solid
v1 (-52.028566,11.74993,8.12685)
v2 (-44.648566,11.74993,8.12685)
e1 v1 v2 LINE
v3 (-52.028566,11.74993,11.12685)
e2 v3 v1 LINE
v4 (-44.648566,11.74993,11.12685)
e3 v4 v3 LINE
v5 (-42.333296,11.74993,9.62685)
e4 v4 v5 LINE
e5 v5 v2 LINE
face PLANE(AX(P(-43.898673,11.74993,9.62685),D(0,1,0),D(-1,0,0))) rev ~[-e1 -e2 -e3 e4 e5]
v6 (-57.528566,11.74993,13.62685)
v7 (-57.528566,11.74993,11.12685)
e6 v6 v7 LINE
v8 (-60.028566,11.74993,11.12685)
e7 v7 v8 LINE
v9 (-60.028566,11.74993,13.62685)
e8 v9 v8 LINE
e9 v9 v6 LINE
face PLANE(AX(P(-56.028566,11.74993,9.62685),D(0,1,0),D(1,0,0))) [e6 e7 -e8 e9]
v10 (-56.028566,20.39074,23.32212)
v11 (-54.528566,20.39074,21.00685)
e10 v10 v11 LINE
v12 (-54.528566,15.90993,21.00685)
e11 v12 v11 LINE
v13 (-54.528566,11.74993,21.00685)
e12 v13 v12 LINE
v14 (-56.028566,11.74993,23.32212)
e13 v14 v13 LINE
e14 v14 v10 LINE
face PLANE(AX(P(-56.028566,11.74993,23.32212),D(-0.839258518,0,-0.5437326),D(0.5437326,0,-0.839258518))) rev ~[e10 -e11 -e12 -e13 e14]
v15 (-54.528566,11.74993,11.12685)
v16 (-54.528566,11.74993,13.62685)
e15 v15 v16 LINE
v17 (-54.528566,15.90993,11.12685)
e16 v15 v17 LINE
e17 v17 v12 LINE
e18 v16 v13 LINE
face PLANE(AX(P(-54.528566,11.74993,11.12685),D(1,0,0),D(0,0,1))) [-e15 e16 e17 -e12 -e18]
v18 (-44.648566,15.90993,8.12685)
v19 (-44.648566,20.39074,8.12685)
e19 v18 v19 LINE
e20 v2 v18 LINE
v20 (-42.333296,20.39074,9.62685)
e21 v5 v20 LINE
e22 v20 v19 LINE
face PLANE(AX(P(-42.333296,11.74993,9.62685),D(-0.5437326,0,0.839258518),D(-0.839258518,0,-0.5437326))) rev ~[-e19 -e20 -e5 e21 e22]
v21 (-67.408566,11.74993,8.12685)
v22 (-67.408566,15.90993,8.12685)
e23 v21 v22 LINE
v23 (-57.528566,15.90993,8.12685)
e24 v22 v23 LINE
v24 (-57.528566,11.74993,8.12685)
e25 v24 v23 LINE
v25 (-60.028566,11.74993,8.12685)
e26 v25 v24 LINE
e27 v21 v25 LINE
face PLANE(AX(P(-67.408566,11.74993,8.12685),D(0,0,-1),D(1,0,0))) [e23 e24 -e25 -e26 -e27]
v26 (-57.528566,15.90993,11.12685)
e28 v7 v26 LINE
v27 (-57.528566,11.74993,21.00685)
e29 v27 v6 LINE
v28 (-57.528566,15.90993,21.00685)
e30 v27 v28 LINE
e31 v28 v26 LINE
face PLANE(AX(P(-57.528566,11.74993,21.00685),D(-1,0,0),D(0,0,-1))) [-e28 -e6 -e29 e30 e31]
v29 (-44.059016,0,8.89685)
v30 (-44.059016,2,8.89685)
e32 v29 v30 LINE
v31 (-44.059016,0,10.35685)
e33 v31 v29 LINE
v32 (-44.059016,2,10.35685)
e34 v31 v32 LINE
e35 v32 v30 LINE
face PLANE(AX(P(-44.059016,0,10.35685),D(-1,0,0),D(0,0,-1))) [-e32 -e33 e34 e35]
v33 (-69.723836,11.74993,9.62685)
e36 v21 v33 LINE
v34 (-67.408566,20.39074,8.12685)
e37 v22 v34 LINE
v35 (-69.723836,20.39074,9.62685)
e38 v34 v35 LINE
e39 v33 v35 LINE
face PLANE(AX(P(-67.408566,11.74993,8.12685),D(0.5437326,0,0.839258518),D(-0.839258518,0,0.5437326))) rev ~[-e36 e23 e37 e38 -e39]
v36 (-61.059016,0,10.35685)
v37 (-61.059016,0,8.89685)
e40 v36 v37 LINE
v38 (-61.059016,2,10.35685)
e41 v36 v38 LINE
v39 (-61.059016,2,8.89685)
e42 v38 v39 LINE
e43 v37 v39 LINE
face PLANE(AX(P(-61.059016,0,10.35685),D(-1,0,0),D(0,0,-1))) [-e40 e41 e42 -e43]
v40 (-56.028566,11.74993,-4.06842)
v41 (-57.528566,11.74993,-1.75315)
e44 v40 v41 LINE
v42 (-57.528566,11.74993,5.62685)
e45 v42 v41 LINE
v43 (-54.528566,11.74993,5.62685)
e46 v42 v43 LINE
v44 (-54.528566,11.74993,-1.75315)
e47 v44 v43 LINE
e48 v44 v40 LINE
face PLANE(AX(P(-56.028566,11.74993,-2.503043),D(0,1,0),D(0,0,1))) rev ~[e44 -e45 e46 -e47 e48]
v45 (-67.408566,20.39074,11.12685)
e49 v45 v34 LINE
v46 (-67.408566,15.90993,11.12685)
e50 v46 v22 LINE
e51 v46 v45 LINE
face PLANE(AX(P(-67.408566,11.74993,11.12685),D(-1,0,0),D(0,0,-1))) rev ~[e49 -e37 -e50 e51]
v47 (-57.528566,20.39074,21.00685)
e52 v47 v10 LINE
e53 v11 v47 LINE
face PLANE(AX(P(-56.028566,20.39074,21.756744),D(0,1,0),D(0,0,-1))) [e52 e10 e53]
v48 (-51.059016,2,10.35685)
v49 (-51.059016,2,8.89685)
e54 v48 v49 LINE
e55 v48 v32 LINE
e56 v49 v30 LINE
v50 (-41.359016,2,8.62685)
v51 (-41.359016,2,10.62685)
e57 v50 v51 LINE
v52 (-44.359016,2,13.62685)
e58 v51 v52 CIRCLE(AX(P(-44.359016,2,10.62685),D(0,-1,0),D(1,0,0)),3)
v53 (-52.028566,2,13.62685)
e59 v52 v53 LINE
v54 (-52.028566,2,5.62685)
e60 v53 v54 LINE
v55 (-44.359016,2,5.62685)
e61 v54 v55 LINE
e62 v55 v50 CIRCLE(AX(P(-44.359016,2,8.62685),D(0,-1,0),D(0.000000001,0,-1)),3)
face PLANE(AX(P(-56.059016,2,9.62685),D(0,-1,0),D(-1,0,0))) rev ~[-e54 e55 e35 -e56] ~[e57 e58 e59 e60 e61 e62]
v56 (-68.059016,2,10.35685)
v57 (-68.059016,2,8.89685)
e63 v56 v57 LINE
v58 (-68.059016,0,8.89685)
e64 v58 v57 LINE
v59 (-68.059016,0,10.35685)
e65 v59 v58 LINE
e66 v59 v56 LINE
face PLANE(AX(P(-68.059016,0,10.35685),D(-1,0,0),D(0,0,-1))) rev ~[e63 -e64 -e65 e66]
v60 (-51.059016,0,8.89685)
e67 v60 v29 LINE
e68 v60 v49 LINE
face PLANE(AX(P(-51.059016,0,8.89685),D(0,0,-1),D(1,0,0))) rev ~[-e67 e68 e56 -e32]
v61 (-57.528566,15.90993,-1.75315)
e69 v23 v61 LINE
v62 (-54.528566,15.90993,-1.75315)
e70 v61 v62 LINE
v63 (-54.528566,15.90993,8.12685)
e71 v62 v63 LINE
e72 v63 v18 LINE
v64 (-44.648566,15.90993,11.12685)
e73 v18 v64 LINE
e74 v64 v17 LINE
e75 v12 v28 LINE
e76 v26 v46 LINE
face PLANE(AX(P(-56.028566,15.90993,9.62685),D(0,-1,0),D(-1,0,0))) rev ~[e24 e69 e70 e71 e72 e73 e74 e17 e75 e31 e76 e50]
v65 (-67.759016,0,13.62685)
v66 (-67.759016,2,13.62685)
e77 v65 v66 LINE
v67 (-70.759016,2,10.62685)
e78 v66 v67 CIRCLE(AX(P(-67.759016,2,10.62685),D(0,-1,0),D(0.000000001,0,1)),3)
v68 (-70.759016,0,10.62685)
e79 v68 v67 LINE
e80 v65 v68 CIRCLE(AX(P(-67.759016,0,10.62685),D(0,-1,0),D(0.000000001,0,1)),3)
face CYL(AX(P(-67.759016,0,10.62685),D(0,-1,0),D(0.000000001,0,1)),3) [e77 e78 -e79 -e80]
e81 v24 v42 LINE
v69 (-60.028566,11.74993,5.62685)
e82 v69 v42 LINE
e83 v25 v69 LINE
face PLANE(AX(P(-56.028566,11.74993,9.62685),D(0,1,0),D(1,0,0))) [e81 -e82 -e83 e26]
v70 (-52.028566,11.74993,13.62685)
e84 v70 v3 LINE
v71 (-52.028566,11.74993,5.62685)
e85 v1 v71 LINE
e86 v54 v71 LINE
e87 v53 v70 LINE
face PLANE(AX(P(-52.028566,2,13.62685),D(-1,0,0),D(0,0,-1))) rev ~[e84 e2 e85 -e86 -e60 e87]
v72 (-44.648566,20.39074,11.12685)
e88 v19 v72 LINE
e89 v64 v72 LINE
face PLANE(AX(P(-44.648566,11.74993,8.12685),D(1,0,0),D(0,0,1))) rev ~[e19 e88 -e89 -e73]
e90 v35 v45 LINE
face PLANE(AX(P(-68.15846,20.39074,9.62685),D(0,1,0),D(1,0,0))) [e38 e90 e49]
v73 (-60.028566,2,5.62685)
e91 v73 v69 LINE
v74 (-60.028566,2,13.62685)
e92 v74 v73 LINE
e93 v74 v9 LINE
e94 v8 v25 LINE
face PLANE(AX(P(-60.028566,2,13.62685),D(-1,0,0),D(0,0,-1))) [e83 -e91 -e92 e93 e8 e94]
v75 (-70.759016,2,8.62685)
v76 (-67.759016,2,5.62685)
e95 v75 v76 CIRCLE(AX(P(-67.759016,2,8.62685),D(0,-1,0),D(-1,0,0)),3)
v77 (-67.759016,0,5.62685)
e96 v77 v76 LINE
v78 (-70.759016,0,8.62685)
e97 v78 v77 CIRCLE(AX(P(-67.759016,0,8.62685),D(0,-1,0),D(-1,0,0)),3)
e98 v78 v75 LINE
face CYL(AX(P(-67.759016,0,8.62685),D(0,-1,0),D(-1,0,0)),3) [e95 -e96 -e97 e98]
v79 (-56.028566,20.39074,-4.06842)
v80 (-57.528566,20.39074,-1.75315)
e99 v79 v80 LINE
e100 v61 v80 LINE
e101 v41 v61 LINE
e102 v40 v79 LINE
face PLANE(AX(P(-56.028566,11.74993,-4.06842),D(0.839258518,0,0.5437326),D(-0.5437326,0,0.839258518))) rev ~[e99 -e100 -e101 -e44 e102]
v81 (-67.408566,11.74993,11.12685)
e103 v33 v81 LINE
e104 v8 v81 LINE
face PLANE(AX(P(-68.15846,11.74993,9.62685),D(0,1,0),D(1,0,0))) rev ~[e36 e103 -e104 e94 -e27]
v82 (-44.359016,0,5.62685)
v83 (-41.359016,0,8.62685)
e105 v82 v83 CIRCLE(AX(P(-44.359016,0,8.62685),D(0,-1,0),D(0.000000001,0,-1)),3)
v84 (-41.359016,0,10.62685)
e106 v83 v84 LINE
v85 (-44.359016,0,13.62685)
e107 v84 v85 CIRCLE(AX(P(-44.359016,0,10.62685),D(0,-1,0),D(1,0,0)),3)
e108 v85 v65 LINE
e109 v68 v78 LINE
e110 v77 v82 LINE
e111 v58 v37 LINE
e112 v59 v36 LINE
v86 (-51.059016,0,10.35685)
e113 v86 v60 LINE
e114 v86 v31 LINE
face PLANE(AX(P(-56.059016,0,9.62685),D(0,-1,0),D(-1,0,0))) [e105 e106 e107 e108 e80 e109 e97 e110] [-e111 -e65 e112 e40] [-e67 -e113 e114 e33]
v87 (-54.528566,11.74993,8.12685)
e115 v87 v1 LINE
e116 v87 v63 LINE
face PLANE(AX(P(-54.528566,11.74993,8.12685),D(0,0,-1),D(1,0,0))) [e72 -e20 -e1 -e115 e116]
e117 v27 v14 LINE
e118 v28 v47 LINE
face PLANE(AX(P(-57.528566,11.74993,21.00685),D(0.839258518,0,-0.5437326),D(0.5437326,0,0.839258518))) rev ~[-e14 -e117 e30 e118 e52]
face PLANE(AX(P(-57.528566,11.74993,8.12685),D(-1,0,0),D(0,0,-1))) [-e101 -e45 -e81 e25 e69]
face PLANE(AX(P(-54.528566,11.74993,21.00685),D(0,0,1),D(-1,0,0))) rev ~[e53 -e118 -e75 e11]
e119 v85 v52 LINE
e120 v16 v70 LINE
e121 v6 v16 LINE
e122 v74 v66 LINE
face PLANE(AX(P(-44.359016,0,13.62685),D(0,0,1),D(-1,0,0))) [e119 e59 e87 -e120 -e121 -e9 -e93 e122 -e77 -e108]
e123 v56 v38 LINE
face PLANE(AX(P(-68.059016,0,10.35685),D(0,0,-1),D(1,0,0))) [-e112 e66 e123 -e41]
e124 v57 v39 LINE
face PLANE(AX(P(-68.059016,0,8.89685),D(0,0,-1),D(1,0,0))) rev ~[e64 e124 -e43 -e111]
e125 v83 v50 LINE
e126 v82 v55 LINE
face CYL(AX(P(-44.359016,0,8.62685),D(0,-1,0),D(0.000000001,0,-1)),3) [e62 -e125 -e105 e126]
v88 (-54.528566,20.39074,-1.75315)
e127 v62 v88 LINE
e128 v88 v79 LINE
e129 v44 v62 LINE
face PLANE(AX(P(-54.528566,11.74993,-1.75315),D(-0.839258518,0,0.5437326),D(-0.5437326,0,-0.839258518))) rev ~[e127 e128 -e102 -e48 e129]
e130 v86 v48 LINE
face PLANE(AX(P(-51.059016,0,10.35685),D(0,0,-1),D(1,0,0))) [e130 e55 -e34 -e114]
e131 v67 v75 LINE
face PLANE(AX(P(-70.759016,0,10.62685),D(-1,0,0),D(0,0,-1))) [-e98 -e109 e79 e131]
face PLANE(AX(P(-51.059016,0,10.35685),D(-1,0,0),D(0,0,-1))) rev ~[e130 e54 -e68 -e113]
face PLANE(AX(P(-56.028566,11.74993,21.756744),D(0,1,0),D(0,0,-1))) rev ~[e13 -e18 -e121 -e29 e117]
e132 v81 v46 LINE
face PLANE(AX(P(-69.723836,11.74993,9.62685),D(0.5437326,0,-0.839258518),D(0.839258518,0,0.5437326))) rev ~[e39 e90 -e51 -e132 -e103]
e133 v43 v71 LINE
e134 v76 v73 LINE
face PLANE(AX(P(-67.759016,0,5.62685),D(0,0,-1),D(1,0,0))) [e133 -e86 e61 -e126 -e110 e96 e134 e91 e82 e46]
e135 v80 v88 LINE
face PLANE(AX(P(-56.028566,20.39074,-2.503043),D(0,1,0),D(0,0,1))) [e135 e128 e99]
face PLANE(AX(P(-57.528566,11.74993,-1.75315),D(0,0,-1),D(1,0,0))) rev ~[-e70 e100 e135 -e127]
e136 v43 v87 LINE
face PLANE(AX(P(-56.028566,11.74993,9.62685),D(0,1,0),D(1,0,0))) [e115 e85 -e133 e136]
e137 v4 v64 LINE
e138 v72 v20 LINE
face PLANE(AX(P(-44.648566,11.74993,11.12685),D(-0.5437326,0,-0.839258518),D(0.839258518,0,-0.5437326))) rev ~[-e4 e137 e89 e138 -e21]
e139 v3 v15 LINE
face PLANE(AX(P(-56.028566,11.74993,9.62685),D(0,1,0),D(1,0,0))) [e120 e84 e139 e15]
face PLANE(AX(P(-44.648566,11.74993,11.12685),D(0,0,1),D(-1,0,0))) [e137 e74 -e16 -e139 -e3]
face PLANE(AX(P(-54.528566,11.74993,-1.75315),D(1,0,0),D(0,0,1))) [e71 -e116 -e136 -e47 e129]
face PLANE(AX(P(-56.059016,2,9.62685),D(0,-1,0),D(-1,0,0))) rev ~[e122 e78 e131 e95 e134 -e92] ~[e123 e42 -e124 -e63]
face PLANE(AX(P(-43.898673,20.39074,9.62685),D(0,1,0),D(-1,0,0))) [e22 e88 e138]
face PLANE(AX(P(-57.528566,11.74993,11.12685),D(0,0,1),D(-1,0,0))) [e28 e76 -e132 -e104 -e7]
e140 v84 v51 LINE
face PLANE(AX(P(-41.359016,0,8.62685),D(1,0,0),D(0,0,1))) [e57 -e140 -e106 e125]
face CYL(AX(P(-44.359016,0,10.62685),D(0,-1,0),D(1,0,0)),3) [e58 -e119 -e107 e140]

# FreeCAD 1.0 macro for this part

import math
import FreeCAD as App
import Part
import Sketcher
Q = App.Units.Quantity


def add_polygon(sketch, points):
    """Adds a closed chain of lines whose ends are joined by coincident constraints."""
    first, n = sketch.GeometryCount, len(points)
    for a, b in zip(points, points[1:] + points[:1]):
        sketch.addGeometry(Part.LineSegment(App.Vector(*a, 0), App.Vector(*b, 0)), False)
    for i in range(n):
        sketch.addConstraint(Sketcher.Constraint("Coincident", first + i, 2, first + (i + 1) % n, 1))

doc = App.newDocument("Part")
body = doc.addObject("PartDesign::Body", "Body")

# Sketch on XZ plane
sketch1 = body.newObject("Sketcher::SketchObject", "Sketch")
sketch1.AttachmentSupport = (doc.getObject("XZ_Plane"), [""])
sketch1.MapMode = "FlatFace"
sketch1.addGeometry(Part.LineSegment(App.Vector(-44.4, 5.6, 0), App.Vector(-67.8, 5.6, 0)), False)  # 0
sketch1.addGeometry(Part.ArcOfCircle(Part.Circle(App.Vector(-67.8, 8.6, 0), App.Vector(0, 0, 1), 3), math.radians(180), math.radians(270)), False)  # 1
sketch1.addGeometry(Part.LineSegment(App.Vector(-70.8, 8.6, 0), App.Vector(-70.8, 10.6, 0)), False)  # 2
sketch1.addGeometry(Part.ArcOfCircle(Part.Circle(App.Vector(-67.8, 10.6, 0), App.Vector(0, 0, 1), 3), math.radians(90), math.radians(180)), False)  # 3
sketch1.addGeometry(Part.LineSegment(App.Vector(-67.8, 13.6, 0), App.Vector(-44.4, 13.6, 0)), False)  # 4
sketch1.addGeometry(Part.ArcOfCircle(Part.Circle(App.Vector(-44.4, 10.6, 0), App.Vector(0, 0, 1), 3), math.radians(0), math.radians(90)), False)  # 5
sketch1.addGeometry(Part.LineSegment(App.Vector(-41.4, 10.6, 0), App.Vector(-41.4, 8.6, 0)), False)  # 6
sketch1.addGeometry(Part.ArcOfCircle(Part.Circle(App.Vector(-44.4, 8.6, 0), App.Vector(0, 0, 1), 3), math.radians(-90), math.radians(0)), False)  # 7
add_polygon(sketch1, [(-51.1, 10.4), (-51.1, 8.9), (-44.1, 8.9), (-44.1, 10.4)])  # lines 8-11
add_polygon(sketch1, [(-68.1, 10.4), (-68.1, 8.9), (-61.1, 8.9), (-61.1, 10.4)])  # lines 12-15
sketch1.addConstraint([
    Sketcher.Constraint("Tangent", 0, 2, 1, 2),
    Sketcher.Constraint("Tangent", 1, 1, 2, 1),
    Sketcher.Constraint("Tangent", 2, 2, 3, 2),
    Sketcher.Constraint("Tangent", 3, 1, 4, 1),
    Sketcher.Constraint("Tangent", 4, 2, 5, 2),
    Sketcher.Constraint("Tangent", 5, 1, 6, 1),
    Sketcher.Constraint("Tangent", 6, 2, 7, 2),
    Sketcher.Constraint("Tangent", 7, 1, 0, 1),
    Sketcher.Constraint("Horizontal", 0),
    Sketcher.Constraint("Vertical", 2),
    Sketcher.Constraint("Horizontal", 4),
    Sketcher.Constraint("Vertical", 6),
    Sketcher.Constraint("Vertical", 8),
    Sketcher.Constraint("Horizontal", 9),
    Sketcher.Constraint("Vertical", 10),
    Sketcher.Constraint("Horizontal", 11),
    Sketcher.Constraint("Vertical", 12),
    Sketcher.Constraint("Horizontal", 13),
    Sketcher.Constraint("Vertical", 14),
    Sketcher.Constraint("Horizontal", 15),
    Sketcher.Constraint("Equal", 1, 3),
    Sketcher.Constraint("Equal", 3, 5),
    Sketcher.Constraint("Equal", 5, 7),
    Sketcher.Constraint("Horizontal", 9, 2, 12, 2),
    Sketcher.Constraint("Horizontal", 11, 2, 14, 2),
    Sketcher.Constraint("Equal", 11, 13),
    Sketcher.Constraint("Radius", 1, Q("3 mm")),
    Sketcher.Constraint("DistanceX", 9, 1, 9, 2, Q("7 mm")),
    Sketcher.Constraint("DistanceY", 2, 1, 2, 2, Q("2 mm")),
    Sketcher.Constraint("DistanceX", 0, 2, 0, 1, Q("23.4 mm")),
    Sketcher.Constraint("DistanceY", 8, 2, 8, 1, Q("1.46 mm")),
    Sketcher.Constraint("DistanceX", 8, 2, 7, 3, Q("6.7 mm")),
    Sketcher.Constraint("DistanceX", 12, 2, 1, 3, Q("0.3 mm")),
    Sketcher.Constraint("DistanceY", 7, 3, 8, 2, Q("0.27 mm")),
    Sketcher.Constraint("DistanceY", -1, 1, 1, 3, Q("8.62685 mm")),
    Sketcher.Constraint("DistanceX", 1, 3, -1, 1, Q("67.759016 mm")),
])
pad1 = body.newObject("PartDesign::Pad", "Pad")
pad1.Profile = sketch1
pad1.Length = 2
pad1.Reversed = True

# Sketch on XZ plane
sketch2 = body.newObject("Sketcher::SketchObject", "Sketch001")
sketch2.AttachmentSupport = (doc.getObject("XZ_Plane"), [""])
sketch2.MapMode = "FlatFace"
sketch2.AttachmentOffset = App.Placement(App.Vector(0, 0, -2), App.Rotation())
add_polygon(sketch2, [(-60, 6), (-60, 14), (-52, 14), (-52, 6)])  # lines 0-3
sketch2.addConstraint([
    Sketcher.Constraint("Vertical", 0),
    Sketcher.Constraint("Horizontal", 1),
    Sketcher.Constraint("Vertical", 2),
    Sketcher.Constraint("Horizontal", 3),
    Sketcher.Constraint("Equal", 3, 0),
    Sketcher.Constraint("DistanceX", 1, 1, 1, 2, Q("8 mm")),
    Sketcher.Constraint("DistanceY", -1, 1, 0, 2, Q("13.62685 mm")),
    Sketcher.Constraint("DistanceX", 0, 2, -1, 1, Q("60.028566 mm")),
])
pad2 = body.newObject("PartDesign::Pad", "Pad001")
pad2.Profile = sketch2
pad2.Length = 9.74993
pad2.Reversed = True

# Sketch on XZ plane
sketch3 = body.newObject("Sketcher::SketchObject", "Sketch002")
sketch3.AttachmentSupport = (doc.getObject("XZ_Plane"), [""])
sketch3.MapMode = "FlatFace"
sketch3.AttachmentOffset = App.Placement(App.Vector(0, 0, -11.74993), App.Rotation())
add_polygon(sketch3, [(-57.5, 8.1), (-67.4, 8.1), (-67.4, 11.1), (-57.5, 11.1), (-57.5, 21), (-54.5, 21), (-54.5, 11.1), (-44.6, 11.1), (-44.6, 8.1), (-54.5, 8.1), (-54.5, -1.8), (-57.5, -1.8)])  # lines 0-11
sketch3.addConstraint([
    Sketcher.Constraint("Horizontal", 0),
    Sketcher.Constraint("Vertical", 1),
    Sketcher.Constraint("Horizontal", 2),
    Sketcher.Constraint("Vertical", 3),
    Sketcher.Constraint("Horizontal", 4),
    Sketcher.Constraint("Vertical", 5),
    Sketcher.Constraint("Horizontal", 6),
    Sketcher.Constraint("Vertical", 7),
    Sketcher.Constraint("Horizontal", 8),
    Sketcher.Constraint("Vertical", 9),
    Sketcher.Constraint("Horizontal", 10),
    Sketcher.Constraint("Vertical", 11),
    Sketcher.Constraint("Horizontal", 2, 2, 5, 2),
    Sketcher.Constraint("Horizontal", 0, 2, 7, 2),
    Sketcher.Constraint("Vertical", 5, 2, 8, 2),
    Sketcher.Constraint("Vertical", 3, 2, 10, 2),
    Sketcher.Constraint("Equal", 2, 6),
    Sketcher.Constraint("Equal", 10, 1),
    Sketcher.Constraint("Equal", 8, 3),
    Sketcher.Constraint("Equal", 5, 9),
    Sketcher.Constraint("DistanceX", 4, 1, 4, 2, Q("3 mm")),
    Sketcher.Constraint("DistanceX", 0, 2, 0, 1, Q("9.88 mm")),
    Sketcher.Constraint("DistanceY", -1, 1, 0, 2, Q("8.12685 mm")),
    Sketcher.Constraint("DistanceX", 0, 2, -1, 1, Q("67.408566 mm")),
])
pad3 = body.newObject("PartDesign::Pad", "Pad002")
pad3.Profile = sketch3
pad3.Length = 4.16
pad3.Reversed = True

# Sketch on XZ plane
sketch4 = body.newObject("Sketcher::SketchObject", "Sketch003")
sketch4.AttachmentSupport = (doc.getObject("XZ_Plane"), [""])
sketch4.MapMode = "FlatFace"
sketch4.AttachmentOffset = App.Placement(App.Vector(0, 0, -11.74993), App.Rotation())
add_polygon(sketch4, [(-67.4, 8.1), (-69.7, 9.6), (-67.4, 11.1)])  # lines 0-2
sketch4.addConstraint([
    Sketcher.Constraint("Vertical", 2),
    Sketcher.Constraint("Equal", 0, 1),
    Sketcher.Constraint("DistanceY", 2, 2, 2, 1, Q("3 mm")),
    Sketcher.Constraint("Distance", 0, Q("2.758709 mm")),
    Sketcher.Constraint("DistanceY", -1, 1, 0, 2, Q("9.62685 mm")),
    Sketcher.Constraint("DistanceX", 0, 2, -1, 1, Q("69.723836 mm")),
])
pad4 = body.newObject("PartDesign::Pad", "Pad003")
pad4.Profile = sketch4
pad4.Length = 8.64081
pad4.Reversed = True

# Sketch on XZ plane
sketch5 = body.newObject("Sketcher::SketchObject", "Sketch004")
sketch5.AttachmentSupport = (doc.getObject("XZ_Plane"), [""])
sketch5.MapMode = "FlatFace"
sketch5.addGeometry(Part.Circle(App.Vector(-56, 9.6, 0), App.Vector(0, 0, 1), 1.5), False)
sketch5.addConstraint([
    Sketcher.Constraint("Diameter", 0, Q("3 mm")),
    Sketcher.Constraint("DistanceY", -1, 1, 0, 3, Q("9.62685 mm")),
    Sketcher.Constraint("DistanceX", 0, 3, -1, 1, Q("56.028566 mm")),
])
pad5 = body.newObject("PartDesign::Pad", "Pad004")
pad5.Profile = sketch5
pad5.Length = 0.5
pad5.Reversed = True
doc.recompute()

datumline = body.newObject("PartDesign::Line", "DatumLine")
datumline.Placement = App.Placement(App.Vector(-56.028566, 0, 9.62685), App.Rotation(App.Vector(0, 0, 1), App.Vector(0, 1, 0)))
polarpattern = body.newObject("PartDesign::PolarPattern", "PolarPattern")
polarpattern.Originals = [pad4]
polarpattern.Axis = (datumline, [""])
polarpattern.Angle = 360
polarpattern.Occurrences = 4
body.Tip = polarpattern

doc.recompute()
